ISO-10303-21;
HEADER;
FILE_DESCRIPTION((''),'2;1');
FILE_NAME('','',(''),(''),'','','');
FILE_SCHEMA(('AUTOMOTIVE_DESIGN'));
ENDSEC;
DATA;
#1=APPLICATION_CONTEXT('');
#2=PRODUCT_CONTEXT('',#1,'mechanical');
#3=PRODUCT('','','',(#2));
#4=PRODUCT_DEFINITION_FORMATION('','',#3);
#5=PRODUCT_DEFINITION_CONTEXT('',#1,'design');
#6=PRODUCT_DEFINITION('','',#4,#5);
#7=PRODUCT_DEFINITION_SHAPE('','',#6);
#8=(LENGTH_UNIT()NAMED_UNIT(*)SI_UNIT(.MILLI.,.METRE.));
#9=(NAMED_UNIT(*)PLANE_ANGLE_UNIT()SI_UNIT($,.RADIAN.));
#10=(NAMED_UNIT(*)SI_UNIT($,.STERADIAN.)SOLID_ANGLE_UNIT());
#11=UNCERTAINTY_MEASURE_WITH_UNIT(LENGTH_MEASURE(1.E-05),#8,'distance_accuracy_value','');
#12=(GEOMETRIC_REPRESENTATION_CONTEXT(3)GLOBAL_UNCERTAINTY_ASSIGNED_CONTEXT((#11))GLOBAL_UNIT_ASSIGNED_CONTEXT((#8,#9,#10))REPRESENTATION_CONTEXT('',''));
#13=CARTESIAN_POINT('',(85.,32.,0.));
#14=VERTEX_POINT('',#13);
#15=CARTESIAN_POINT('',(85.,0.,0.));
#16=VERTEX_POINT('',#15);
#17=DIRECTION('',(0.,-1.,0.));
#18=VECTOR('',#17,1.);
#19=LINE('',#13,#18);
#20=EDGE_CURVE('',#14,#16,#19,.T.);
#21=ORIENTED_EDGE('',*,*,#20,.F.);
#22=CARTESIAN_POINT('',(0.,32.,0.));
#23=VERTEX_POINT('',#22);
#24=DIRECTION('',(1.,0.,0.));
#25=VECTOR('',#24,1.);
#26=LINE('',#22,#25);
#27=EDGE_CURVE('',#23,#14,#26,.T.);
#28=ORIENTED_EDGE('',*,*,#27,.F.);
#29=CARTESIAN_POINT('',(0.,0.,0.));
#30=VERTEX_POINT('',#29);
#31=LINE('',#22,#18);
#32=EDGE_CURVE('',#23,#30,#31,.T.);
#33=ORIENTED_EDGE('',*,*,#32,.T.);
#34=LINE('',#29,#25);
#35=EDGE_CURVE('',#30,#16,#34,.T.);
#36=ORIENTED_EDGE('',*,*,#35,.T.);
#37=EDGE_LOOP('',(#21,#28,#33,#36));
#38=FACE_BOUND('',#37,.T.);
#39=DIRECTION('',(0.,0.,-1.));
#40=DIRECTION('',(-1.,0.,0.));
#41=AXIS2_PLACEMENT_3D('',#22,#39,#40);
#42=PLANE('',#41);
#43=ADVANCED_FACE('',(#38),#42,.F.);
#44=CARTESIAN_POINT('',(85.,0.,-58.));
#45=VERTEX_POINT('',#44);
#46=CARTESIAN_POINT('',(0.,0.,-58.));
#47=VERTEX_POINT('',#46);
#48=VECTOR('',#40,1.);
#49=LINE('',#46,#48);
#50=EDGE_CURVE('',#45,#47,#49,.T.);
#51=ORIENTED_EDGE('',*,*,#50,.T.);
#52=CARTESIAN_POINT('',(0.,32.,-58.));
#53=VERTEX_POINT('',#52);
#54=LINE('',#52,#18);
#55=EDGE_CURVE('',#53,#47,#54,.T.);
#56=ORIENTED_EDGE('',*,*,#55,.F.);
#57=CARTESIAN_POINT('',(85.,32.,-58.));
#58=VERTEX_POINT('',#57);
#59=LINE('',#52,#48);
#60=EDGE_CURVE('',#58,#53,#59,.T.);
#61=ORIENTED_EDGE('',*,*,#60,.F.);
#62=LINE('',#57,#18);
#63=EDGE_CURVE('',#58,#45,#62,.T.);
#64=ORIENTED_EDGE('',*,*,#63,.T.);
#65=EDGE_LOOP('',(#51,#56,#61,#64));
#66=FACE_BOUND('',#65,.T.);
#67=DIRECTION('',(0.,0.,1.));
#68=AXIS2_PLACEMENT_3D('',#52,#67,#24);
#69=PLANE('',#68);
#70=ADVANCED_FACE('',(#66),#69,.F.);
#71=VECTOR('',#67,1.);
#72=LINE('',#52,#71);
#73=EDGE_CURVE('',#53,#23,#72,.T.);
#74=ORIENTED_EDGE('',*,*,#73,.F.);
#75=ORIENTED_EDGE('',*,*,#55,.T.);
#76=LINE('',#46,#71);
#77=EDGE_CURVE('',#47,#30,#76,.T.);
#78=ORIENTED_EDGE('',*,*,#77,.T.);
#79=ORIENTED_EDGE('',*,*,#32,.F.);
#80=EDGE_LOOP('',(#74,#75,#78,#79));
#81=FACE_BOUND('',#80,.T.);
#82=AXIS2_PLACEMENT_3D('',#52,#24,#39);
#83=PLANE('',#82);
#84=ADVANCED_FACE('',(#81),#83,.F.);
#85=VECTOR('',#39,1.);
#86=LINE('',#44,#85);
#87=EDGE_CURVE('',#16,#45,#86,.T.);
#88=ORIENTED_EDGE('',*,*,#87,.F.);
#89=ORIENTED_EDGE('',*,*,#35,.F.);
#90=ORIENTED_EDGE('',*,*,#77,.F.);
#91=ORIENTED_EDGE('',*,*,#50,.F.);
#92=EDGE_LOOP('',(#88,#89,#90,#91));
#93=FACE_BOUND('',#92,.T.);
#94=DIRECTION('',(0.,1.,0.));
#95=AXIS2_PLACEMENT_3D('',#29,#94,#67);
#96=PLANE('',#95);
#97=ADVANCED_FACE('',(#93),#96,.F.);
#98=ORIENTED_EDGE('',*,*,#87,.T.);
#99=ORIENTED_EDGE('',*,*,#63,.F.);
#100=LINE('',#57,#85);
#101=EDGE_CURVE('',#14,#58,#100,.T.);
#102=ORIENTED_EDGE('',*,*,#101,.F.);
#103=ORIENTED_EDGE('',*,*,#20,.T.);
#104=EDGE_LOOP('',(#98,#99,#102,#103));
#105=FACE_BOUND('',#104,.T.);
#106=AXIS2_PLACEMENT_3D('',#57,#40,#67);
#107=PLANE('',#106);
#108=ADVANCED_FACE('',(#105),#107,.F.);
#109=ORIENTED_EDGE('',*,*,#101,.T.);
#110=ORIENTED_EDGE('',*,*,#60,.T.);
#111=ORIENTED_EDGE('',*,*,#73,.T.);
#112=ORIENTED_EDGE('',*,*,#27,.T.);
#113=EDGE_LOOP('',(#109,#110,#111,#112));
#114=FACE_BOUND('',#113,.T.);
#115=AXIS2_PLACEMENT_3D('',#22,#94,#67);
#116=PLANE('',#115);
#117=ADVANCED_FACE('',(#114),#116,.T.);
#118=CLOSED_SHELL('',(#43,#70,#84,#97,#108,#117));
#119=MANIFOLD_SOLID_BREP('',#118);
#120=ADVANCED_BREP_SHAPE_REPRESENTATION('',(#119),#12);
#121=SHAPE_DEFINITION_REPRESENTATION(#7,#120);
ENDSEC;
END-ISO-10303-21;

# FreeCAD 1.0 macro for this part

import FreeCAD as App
import Part
import Sketcher


def add_polygon(sketch, points):
    """Adds a closed chain of lines whose ends are joined by coincident constraints."""
    first, n = sketch.GeometryCount, len(points)
    for a, b in zip(points, points[1:] + points[:1]):
        sketch.addGeometry(Part.LineSegment(App.Vector(*a, 0), App.Vector(*b, 0)), False)
    for i in range(n):
        sketch.addConstraint(Sketcher.Constraint("Coincident", first + i, 2, first + (i + 1) % n, 1))

doc = App.newDocument("Part")
body = doc.addObject("PartDesign::Body", "Body")

# Sketch on XZ plane
sketch1 = body.newObject("Sketcher::SketchObject", "Sketch")
sketch1.AttachmentSupport = (doc.getObject("XZ_Plane"), [""])
sketch1.MapMode = "FlatFace"
add_polygon(sketch1, [(0, -58), (0, 0), (85, 0), (85, -58)])  # lines 0-3
sketch1.addConstraint(Sketcher.Constraint("Vertical", 0))
sketch1.addConstraint(Sketcher.Constraint("Horizontal", 1))
sketch1.addConstraint(Sketcher.Constraint("Vertical", 2))
sketch1.addConstraint(Sketcher.Constraint("Horizontal", 3))
sketch1.addConstraint(Sketcher.Constraint("Coincident", 0, 2, -1, 1))
sketch1.addConstraint(Sketcher.Constraint("DistanceX", 1, 1, 1, 2, 85.0))
sketch1.addConstraint(Sketcher.Constraint("DistanceY", 0, 1, 0, 2, 58.0))
pad1 = body.newObject("PartDesign::Pad", "Pad")
pad1.Profile = sketch1
pad1.Length = 32
pad1.Reversed = True

doc.recompute()
